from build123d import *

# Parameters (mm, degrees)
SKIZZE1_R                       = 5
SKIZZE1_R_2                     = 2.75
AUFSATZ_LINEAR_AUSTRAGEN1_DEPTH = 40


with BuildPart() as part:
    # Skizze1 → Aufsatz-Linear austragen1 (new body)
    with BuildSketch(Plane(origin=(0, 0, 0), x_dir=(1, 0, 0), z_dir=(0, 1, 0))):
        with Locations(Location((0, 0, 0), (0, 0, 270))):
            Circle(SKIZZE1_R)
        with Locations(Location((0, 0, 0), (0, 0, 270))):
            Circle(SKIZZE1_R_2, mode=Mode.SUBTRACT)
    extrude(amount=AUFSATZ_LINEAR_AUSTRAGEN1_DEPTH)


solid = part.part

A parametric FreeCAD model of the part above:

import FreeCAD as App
import Part
import Sketcher
Q = App.Units.Quantity

doc = App.newDocument("Part")
body = doc.addObject("PartDesign::Body", "Body")

# Sketch on XZ plane
sketch1 = body.newObject("Sketcher::SketchObject", "Sketch")
sketch1.AttachmentSupport = (doc.getObject("XZ_Plane"), [""])
sketch1.MapMode = "FlatFace"
sketch1.addGeometry([
    Part.Circle(App.Vector(0, 0, 0), App.Vector(0, 0, 1), 5),
    Part.Circle(App.Vector(0, 0, 0), App.Vector(0, 0, 1), 2.8),
], False)
sketch1.addConstraint([
    Sketcher.Constraint("Coincident", 0, 3, -1, 1),
    Sketcher.Constraint("Coincident", 1, 3, -1, 1),
    Sketcher.Constraint("Diameter", 0, Q("10 mm")),
    Sketcher.Constraint("Diameter", 1, Q("5.5 mm")),
])
pad1 = body.newObject("PartDesign::Pad", "Pad")
pad1.Profile = sketch1
pad1.Length = 40
pad1.Reversed = True

doc.recompute()
